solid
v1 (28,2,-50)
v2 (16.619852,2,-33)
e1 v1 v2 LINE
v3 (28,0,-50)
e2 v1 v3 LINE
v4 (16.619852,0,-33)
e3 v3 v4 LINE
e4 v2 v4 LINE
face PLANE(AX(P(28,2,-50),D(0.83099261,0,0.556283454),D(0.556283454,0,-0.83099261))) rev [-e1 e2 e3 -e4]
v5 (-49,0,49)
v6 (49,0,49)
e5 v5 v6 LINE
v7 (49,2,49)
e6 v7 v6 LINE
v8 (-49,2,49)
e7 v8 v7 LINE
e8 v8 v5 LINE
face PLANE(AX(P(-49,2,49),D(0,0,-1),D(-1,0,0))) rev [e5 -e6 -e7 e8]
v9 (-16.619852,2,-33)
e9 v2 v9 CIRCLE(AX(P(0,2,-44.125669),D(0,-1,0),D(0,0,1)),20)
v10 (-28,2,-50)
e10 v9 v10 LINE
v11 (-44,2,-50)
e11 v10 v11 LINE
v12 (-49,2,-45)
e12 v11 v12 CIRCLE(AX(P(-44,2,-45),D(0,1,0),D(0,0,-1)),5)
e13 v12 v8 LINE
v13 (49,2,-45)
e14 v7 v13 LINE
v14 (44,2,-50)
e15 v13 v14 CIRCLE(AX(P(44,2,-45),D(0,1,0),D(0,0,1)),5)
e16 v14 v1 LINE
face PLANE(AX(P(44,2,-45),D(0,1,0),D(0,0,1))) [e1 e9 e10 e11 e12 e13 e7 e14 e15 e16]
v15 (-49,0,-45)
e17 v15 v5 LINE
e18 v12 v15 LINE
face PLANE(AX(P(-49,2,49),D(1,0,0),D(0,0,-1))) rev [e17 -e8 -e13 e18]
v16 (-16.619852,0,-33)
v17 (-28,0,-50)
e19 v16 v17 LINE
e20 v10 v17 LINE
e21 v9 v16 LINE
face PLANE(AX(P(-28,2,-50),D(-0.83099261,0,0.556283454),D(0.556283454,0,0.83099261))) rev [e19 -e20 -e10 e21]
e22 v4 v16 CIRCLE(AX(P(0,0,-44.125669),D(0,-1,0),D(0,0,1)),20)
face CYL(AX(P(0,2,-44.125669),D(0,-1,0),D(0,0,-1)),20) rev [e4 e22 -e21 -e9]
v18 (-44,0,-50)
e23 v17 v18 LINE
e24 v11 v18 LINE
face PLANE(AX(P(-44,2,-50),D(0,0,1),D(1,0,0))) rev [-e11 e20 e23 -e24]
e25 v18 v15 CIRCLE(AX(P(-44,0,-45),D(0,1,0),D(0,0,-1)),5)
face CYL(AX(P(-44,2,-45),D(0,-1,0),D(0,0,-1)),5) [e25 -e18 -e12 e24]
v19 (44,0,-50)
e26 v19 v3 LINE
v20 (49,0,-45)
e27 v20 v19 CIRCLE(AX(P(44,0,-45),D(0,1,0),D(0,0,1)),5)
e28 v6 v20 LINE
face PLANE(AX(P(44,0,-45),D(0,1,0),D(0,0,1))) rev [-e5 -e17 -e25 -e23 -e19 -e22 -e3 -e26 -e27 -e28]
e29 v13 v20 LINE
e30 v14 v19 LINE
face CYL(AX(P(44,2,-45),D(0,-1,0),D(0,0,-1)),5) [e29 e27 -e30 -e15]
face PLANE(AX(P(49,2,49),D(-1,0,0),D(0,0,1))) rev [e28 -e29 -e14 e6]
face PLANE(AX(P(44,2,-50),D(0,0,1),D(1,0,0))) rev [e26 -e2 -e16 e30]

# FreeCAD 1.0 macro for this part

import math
import FreeCAD as App
import Part
import Sketcher
Q = App.Units.Quantity

doc = App.newDocument("Part")
body = doc.addObject("PartDesign::Body", "Body")

# Sketch on XZ plane
sketch1 = body.newObject("Sketcher::SketchObject", "Sketch")
sketch1.AttachmentSupport = (doc.getObject("XZ_Plane"), [""])
sketch1.MapMode = "FlatFace"
sketch1.addGeometry([
    Part.LineSegment(App.Vector(-28, -50, 0), App.Vector(-44, -50, 0)),  # 0
    Part.ArcOfCircle(Part.Circle(App.Vector(-44, -45, 0), App.Vector(0, 0, 1), 5), math.radians(180), math.radians(270)),  # 1
    Part.LineSegment(App.Vector(-49, -45, 0), App.Vector(-49, 49, 0)),  # 2
    Part.LineSegment(App.Vector(-49, 49, 0), App.Vector(49, 49, 0)),  # 3
    Part.LineSegment(App.Vector(49, 49, 0), App.Vector(49, -45, 0)),  # 4
    Part.ArcOfCircle(Part.Circle(App.Vector(44, -45, 0), App.Vector(0, 0, 1), 5), math.radians(-90), math.radians(0)),  # 5
    Part.LineSegment(App.Vector(44, -50, 0), App.Vector(28, -50, 0)),  # 6
    Part.LineSegment(App.Vector(28, -50, 0), App.Vector(17, -33, 0)),  # 7
    Part.ArcOfCircle(Part.Circle(App.Vector(0, -44, 0), App.Vector(0, 0, 1), 20), math.radians(34), math.radians(146)),  # 8
    Part.LineSegment(App.Vector(-17, -33, 0), App.Vector(-28, -50, 0)),  # 9
], False)
sketch1.addConstraint([
    Sketcher.Constraint("Tangent", 0, 2, 1, 2),
    Sketcher.Constraint("Tangent", 1, 1, 2, 1),
    Sketcher.Constraint("Coincident", 2, 2, 3, 1),
    Sketcher.Constraint("Coincident", 3, 2, 4, 1),
    Sketcher.Constraint("Tangent", 4, 2, 5, 2),
    Sketcher.Constraint("Tangent", 5, 1, 6, 1),
    Sketcher.Constraint("Coincident", 6, 2, 7, 1),
    Sketcher.Constraint("Tangent", 7, 2, 8, 1),
    Sketcher.Constraint("Tangent", 8, 2, 9, 1),
    Sketcher.Constraint("Coincident", 9, 2, 0, 1),
    Sketcher.Constraint("Horizontal", 0),
    Sketcher.Constraint("Vertical", 2),
    Sketcher.Constraint("Horizontal", 3),
    Sketcher.Constraint("Vertical", 4),
    Sketcher.Constraint("Horizontal", 6),
    Sketcher.Constraint("Equal", 1, 5),
    Sketcher.Constraint("Symmetric", 1, 3, 5, 3, -2),
    Sketcher.Constraint("Symmetric", 7, 2, 8, 2, -2),
    Sketcher.Constraint("Radius", 1, Q("5 mm")),
    Sketcher.Constraint("Radius", 8, Q("20 mm")),
    Sketcher.Constraint("DistanceX", 0, 2, 0, 1, Q("16 mm")),
    Sketcher.Constraint("DistanceX", 3, 1, 3, 2, Q("98 mm")),
    Sketcher.Constraint("DistanceY", 2, 1, 2, 2, Q("94 mm")),
    Sketcher.Constraint("DistanceY", 1, 3, -1, 1, Q("45 mm")),
    Sketcher.Constraint("DistanceY", 7, 2, -1, 1, Q("33 mm")),
])
pad1 = body.newObject("PartDesign::Pad", "Pad")
pad1.Profile = sketch1
pad1.Length = 2
pad1.Reversed = True

doc.recompute()
